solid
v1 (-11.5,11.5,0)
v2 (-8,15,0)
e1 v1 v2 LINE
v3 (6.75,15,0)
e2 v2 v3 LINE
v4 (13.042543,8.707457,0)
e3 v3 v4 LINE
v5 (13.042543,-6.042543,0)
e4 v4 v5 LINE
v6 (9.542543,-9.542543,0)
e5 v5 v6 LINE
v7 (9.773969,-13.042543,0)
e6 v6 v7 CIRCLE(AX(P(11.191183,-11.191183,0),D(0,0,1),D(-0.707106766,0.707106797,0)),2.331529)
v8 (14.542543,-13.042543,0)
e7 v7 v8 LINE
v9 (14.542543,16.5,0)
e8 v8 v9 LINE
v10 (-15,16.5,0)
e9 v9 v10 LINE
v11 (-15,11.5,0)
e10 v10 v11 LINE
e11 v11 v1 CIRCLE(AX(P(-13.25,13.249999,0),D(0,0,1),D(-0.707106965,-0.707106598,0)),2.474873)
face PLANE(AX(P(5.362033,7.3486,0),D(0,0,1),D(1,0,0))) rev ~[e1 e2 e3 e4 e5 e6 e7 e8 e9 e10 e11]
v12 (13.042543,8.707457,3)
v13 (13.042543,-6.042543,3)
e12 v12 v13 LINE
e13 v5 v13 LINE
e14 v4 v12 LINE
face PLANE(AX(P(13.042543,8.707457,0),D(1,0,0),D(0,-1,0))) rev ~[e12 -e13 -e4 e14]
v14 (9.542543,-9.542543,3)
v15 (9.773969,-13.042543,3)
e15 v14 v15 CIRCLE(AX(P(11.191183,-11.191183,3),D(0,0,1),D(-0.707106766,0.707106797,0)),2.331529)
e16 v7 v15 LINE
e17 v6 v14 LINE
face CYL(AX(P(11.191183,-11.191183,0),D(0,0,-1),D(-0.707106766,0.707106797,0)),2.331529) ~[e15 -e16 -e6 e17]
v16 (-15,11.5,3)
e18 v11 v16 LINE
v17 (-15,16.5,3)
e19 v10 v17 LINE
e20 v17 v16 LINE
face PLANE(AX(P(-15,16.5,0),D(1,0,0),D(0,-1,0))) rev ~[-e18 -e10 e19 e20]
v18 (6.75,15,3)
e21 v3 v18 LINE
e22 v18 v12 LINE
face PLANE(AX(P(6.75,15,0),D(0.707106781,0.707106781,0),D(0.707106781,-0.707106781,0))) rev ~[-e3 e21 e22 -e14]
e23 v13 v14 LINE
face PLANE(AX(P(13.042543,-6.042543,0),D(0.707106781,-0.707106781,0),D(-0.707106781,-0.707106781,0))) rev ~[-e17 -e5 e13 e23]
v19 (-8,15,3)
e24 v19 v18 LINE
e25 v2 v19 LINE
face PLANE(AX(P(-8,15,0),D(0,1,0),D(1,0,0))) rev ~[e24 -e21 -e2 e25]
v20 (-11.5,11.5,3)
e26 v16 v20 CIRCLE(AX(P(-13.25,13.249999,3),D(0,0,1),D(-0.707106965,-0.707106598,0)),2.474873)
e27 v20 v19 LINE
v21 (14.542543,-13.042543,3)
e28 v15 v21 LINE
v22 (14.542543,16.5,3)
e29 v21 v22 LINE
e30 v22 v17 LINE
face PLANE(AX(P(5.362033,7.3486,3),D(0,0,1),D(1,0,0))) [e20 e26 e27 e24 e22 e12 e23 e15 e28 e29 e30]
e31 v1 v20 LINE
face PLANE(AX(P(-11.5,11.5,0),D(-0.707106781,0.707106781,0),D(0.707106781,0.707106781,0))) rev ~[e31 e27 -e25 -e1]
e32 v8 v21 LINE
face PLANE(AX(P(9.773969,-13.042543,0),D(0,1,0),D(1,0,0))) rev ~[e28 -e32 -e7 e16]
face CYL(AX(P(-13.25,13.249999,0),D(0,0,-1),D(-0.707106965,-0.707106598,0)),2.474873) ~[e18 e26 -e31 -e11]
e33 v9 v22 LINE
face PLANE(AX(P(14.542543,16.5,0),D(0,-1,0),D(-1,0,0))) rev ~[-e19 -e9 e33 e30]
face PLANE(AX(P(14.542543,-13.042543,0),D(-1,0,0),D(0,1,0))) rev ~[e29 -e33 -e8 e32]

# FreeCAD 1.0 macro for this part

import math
import FreeCAD as App
import Part
import Sketcher
from FreeCAD import Vector
Q = App.Units.Quantity

doc = App.newDocument("Part")
params = doc.addObject("Spreadsheet::Sheet", "Params")
for row, (alias, value) in enumerate([
    ("sketch1_height", "5 mm"),
    ("sketch1_width", "14.75 mm"),
    ("pad1_length", "3 mm"),
], start=1):
    params.set(f"A{row}", alias)
    params.set(f"B{row}", "=" + value)
    params.setAlias(f"B{row}", alias)

body = doc.addObject("PartDesign::Body", "Body")

# Sketch on XY plane
sketch1 = body.newObject("Sketcher::SketchObject", "Sketch")
sketch1.AttachmentSupport = (doc.getObject("XY_Plane"), [""])
sketch1.MapMode = "FlatFace"
sketch1.addGeometry(Part.LineSegment(Vector(-8, 15, 0), Vector(6.8, 15, 0)), False)
sketch1.addGeometry(Part.LineSegment(Vector(6.8, 15, 0), Vector(13, 8.7, 0)), False)
sketch1.addGeometry(Part.LineSegment(Vector(13, 8.7, 0), Vector(13, -6, 0)), False)
sketch1.addGeometry(Part.LineSegment(Vector(13, -6, 0), Vector(9.5, -9.5, 0)), False)
sketch1.addGeometry(Part.ArcOfCircle(Part.Circle(Vector(11.2, -11.2, 0), Vector(0, 0, 1), 2.3), math.radians(135), math.radians(233)), False)
sketch1.addGeometry(Part.LineSegment(Vector(9.8, -13, 0), Vector(14.5, -13, 0)), False)
sketch1.addGeometry(Part.LineSegment(Vector(14.5, -13, 0), Vector(14.5, 16.5, 0)), False)
sketch1.addGeometry(Part.LineSegment(Vector(14.5, 16.5, 0), Vector(-15, 16.5, 0)), False)
sketch1.addGeometry(Part.LineSegment(Vector(-15, 16.5, 0), Vector(-15, 11.5, 0)), False)
sketch1.addGeometry(Part.ArcOfCircle(Part.Circle(Vector(-13.2, 13.2, 0), Vector(0, 0, 1), 2.5), math.radians(-135), math.radians(-45)), False)
sketch1.addGeometry(Part.LineSegment(Vector(-11.5, 11.5, 0), Vector(-8, 15, 0)), False)
sketch1.addConstraint(Sketcher.Constraint("Coincident", 0, 2, 1, 1))
sketch1.addConstraint(Sketcher.Constraint("Coincident", 1, 2, 2, 1))
sketch1.addConstraint(Sketcher.Constraint("Coincident", 2, 2, 3, 1))
sketch1.addConstraint(Sketcher.Constraint("Tangent", 3, 2, 4, 1))
sketch1.addConstraint(Sketcher.Constraint("Coincident", 4, 2, 5, 1))
sketch1.addConstraint(Sketcher.Constraint("Coincident", 5, 2, 6, 1))
sketch1.addConstraint(Sketcher.Constraint("Coincident", 6, 2, 7, 1))
sketch1.addConstraint(Sketcher.Constraint("Coincident", 7, 2, 8, 1))
sketch1.addConstraint(Sketcher.Constraint("Coincident", 8, 2, 9, 1))
sketch1.addConstraint(Sketcher.Constraint("Tangent", 9, 2, 10, 1))
sketch1.addConstraint(Sketcher.Constraint("Coincident", 10, 2, 0, 1))
sketch1.addConstraint(Sketcher.Constraint("Horizontal", 0))
sketch1.addConstraint(Sketcher.Constraint("Vertical", 2))
sketch1.addConstraint(Sketcher.Constraint("Horizontal", 5))
sketch1.addConstraint(Sketcher.Constraint("Vertical", 6))
sketch1.addConstraint(Sketcher.Constraint("Horizontal", 7))
sketch1.addConstraint(Sketcher.Constraint("Vertical", 8))
sketch1.addConstraint(Sketcher.Constraint("Perpendicular", 1, 3))
sketch1.addConstraint(Sketcher.Constraint("Parallel", 3, 10))
sketch1.addConstraint(Sketcher.Constraint("Horizontal", 8, 2, 9, 2))
sketch1.addConstraint(Sketcher.Constraint("Equal", 0, 2))
sketch1.addConstraint(Sketcher.Constraint("Equal", 7, 6))
sketch1.addConstraint(Sketcher.Constraint("Equal", 3, 10))
sketch1.addConstraint(Sketcher.Constraint("DistanceY", 8, 2, 8, 1, Q("5 mm")))
sketch1.addConstraint(Sketcher.Constraint("Angle", 1, Q("-45 deg")))
sketch1.addConstraint(Sketcher.Constraint("DistanceY", -1, 1, 0, 2, Q("15 mm")))
sketch1.addConstraint(Sketcher.Constraint("DistanceX", 7, 2, -1, 1, Q("15 mm")))
sketch1.addConstraint(Sketcher.Constraint("DistanceX", 10, 2, -1, 1, Q("8 mm")))
sketch1.addConstraint(Sketcher.Constraint("DistanceX", 9, 3, 0, 2, Q("20 mm")))
sketch1.addConstraint(Sketcher.Constraint("DistanceY", 4, 2, 2, 2, Q("7 mm")))
sketch1.addConstraint(Sketcher.Constraint("DistanceX", 0, 1, 0, 2, Q("14.75 mm")))
sketch1.addConstraint(Sketcher.Constraint("Radius", 4, Q("2.331529 mm")))
sketch1.addConstraint(Sketcher.Constraint("Distance", 1, Q("8.899 mm")))
sketch1.setExpression("Constraints[23]", "Params.sketch1_height")
sketch1.setExpression("Constraints[30]", "Params.sketch1_width")
pad1 = body.newObject("PartDesign::Pad", "Pad")
pad1.Profile = sketch1
pad1.setExpression("Length", "Params.pad1_length")

doc.recompute()
